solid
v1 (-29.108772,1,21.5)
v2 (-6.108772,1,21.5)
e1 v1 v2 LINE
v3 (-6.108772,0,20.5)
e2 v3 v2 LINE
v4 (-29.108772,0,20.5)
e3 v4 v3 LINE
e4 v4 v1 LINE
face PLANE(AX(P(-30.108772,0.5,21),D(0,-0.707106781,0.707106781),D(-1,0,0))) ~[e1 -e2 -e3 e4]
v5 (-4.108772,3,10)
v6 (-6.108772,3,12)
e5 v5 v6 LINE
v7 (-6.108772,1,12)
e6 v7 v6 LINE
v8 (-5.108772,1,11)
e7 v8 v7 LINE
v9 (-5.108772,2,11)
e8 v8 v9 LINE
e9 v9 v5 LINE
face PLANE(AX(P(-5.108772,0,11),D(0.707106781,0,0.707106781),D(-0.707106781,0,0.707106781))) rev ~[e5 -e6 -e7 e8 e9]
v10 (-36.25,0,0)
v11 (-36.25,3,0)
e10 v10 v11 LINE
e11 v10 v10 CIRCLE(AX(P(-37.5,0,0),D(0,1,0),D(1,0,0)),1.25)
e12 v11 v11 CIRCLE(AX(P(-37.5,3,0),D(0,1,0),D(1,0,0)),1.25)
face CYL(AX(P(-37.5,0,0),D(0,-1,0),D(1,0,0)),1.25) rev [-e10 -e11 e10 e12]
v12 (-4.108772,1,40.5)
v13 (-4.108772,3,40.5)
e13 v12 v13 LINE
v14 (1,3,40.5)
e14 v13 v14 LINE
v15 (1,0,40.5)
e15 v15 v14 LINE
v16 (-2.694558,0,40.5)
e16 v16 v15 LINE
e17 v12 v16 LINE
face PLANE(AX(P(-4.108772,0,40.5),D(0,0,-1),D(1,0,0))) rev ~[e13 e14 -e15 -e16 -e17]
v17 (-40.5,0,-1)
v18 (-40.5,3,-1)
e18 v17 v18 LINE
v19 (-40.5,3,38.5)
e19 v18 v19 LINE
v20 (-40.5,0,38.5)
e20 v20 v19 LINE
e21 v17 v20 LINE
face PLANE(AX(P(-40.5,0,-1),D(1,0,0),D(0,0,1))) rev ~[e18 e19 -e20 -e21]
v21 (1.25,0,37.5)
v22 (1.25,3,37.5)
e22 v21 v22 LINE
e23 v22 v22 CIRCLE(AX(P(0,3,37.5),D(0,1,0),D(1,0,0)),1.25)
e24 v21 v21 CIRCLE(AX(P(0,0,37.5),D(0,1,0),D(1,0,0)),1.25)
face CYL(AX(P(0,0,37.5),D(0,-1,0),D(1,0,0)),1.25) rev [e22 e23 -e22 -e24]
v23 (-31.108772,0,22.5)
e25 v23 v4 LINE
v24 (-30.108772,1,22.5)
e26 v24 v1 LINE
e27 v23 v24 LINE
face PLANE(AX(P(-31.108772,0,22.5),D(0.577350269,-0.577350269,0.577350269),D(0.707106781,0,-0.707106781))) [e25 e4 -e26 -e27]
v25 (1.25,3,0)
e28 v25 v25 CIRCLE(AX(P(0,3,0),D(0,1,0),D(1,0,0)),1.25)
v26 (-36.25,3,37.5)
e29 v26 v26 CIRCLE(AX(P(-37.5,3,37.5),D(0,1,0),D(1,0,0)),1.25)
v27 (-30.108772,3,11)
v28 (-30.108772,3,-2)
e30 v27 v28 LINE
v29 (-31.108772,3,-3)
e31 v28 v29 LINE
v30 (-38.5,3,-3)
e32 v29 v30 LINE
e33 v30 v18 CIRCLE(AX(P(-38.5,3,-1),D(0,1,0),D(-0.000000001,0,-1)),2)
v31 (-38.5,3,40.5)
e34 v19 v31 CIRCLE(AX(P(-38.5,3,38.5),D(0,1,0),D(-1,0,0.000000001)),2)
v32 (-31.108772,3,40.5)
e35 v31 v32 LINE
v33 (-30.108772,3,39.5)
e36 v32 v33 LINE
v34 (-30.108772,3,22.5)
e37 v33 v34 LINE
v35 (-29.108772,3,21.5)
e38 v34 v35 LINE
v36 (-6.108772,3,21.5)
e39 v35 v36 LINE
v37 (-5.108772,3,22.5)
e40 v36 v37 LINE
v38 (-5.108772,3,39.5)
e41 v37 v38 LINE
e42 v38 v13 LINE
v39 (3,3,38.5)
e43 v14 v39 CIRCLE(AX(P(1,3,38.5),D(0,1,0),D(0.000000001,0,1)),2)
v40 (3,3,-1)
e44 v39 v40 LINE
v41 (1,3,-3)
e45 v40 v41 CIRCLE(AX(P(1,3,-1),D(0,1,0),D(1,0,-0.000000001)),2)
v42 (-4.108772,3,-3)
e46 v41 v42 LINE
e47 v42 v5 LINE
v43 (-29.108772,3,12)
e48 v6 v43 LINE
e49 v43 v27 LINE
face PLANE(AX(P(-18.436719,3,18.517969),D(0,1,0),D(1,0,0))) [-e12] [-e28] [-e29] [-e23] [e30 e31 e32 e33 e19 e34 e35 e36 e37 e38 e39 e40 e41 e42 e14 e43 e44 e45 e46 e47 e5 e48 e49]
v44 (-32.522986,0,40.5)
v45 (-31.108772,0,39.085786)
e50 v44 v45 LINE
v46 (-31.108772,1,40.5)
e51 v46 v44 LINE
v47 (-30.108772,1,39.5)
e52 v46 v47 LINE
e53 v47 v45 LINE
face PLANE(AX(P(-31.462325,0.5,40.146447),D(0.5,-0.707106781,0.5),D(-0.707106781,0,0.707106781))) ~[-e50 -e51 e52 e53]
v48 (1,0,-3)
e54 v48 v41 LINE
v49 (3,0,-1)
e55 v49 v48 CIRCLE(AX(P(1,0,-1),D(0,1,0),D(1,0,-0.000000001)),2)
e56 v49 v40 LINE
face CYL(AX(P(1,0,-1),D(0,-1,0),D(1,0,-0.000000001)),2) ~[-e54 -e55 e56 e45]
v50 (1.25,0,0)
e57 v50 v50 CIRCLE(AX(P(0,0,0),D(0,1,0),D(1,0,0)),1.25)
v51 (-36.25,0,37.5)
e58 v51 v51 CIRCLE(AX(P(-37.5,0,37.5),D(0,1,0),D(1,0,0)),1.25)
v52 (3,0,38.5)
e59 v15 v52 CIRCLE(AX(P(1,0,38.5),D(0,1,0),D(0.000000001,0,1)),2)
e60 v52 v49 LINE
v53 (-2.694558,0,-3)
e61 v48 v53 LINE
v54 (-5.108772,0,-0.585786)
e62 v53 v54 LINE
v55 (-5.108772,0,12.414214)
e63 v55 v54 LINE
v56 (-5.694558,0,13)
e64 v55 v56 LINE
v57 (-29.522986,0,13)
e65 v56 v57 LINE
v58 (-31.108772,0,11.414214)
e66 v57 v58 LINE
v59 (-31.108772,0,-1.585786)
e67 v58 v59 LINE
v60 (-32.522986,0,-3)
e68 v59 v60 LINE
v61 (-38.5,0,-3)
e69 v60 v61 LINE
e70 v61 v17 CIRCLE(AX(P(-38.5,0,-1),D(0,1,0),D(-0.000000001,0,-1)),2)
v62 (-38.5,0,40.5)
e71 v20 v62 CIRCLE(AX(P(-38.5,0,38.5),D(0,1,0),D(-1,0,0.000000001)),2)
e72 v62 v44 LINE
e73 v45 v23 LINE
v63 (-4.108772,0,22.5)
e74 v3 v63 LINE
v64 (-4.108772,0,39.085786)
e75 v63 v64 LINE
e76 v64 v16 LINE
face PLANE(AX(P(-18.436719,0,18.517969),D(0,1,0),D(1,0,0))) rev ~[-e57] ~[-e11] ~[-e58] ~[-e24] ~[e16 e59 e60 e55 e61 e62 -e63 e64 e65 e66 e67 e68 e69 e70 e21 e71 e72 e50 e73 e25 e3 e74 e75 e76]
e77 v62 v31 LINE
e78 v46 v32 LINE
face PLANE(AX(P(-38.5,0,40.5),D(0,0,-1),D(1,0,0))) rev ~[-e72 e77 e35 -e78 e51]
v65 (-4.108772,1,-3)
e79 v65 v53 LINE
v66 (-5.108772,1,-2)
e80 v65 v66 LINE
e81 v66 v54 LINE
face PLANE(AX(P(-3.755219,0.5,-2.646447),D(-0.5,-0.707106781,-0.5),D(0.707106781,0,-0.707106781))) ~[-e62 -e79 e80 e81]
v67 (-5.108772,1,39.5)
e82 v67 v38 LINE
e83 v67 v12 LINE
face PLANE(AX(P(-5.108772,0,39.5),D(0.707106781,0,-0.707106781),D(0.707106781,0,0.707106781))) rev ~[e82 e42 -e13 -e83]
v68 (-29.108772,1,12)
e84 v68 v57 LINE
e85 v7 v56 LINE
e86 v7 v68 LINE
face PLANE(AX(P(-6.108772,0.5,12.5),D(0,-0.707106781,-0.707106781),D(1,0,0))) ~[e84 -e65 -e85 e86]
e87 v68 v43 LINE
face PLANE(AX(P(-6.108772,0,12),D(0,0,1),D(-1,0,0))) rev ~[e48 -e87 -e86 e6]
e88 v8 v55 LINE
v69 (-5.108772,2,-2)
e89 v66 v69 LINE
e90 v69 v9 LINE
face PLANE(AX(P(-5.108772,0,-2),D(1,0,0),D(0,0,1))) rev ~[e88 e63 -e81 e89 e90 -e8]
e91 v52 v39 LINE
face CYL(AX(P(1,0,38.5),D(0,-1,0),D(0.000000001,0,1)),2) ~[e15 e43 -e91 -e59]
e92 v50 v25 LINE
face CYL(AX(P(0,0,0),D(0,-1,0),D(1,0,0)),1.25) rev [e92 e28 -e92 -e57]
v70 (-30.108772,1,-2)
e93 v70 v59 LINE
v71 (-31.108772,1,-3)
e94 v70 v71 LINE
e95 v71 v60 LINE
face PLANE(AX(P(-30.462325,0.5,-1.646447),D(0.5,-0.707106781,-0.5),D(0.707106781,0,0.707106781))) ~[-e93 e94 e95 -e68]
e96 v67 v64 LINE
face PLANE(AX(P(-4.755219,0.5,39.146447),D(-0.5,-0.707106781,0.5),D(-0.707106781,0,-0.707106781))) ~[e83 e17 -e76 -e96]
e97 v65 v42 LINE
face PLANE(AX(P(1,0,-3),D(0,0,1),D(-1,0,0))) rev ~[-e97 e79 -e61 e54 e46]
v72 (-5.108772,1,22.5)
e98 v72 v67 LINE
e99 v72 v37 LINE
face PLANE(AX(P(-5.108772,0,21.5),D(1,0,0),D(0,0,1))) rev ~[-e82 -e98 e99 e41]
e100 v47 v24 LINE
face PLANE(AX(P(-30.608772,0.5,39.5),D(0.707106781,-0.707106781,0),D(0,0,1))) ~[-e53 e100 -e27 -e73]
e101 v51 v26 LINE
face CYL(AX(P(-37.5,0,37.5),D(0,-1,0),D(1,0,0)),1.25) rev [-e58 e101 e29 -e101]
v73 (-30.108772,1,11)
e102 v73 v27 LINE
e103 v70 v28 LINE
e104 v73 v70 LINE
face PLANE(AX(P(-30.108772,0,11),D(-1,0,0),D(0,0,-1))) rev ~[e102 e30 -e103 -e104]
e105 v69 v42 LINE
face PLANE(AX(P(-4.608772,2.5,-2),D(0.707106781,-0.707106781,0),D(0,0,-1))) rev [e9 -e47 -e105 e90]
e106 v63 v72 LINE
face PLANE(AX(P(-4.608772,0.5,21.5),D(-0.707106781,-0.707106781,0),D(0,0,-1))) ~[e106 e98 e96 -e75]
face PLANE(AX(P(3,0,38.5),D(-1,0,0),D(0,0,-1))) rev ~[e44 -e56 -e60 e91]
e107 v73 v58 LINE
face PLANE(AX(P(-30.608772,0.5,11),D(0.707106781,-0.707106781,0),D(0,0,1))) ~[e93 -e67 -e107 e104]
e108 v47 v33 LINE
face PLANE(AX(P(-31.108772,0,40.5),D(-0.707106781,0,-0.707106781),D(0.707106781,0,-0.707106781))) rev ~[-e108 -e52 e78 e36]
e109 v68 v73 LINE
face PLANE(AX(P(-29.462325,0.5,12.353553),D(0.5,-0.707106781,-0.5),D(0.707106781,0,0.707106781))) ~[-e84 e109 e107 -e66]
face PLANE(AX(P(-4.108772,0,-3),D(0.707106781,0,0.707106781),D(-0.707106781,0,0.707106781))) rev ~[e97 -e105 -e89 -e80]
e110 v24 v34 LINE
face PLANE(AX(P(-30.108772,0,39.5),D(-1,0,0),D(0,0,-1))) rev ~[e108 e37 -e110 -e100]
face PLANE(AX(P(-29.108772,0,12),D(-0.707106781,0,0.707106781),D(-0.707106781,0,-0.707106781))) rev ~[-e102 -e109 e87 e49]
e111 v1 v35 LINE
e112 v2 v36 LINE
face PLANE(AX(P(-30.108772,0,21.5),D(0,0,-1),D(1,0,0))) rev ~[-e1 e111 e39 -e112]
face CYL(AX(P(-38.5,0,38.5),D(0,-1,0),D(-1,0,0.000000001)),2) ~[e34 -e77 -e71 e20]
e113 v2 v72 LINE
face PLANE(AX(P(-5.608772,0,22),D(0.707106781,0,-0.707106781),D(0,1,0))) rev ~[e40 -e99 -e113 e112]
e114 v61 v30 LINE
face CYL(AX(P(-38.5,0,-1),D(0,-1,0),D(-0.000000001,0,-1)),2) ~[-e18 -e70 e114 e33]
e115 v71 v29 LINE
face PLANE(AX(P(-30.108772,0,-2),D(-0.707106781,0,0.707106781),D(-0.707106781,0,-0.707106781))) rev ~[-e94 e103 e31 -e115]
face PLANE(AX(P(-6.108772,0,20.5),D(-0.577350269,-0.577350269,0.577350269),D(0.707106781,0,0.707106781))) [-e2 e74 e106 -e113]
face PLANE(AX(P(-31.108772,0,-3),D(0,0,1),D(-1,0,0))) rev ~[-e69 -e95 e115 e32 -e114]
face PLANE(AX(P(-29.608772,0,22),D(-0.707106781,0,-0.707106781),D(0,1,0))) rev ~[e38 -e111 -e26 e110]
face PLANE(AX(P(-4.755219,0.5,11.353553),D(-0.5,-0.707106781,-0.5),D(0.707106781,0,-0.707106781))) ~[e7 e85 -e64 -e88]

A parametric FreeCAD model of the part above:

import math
import FreeCAD as App
import Part
import Sketcher


def edges_at(feature, points):
    """Names of the edges that pass closest to the given points."""
    edges = feature.Shape.Edges
    near = lambda p: min(range(len(edges)), key=lambda i: edges[i].distToShape(Part.Vertex(*p))[0])
    return sorted({f"Edge{near(p) + 1}" for p in points})

doc = App.newDocument("Part")
body = doc.addObject("PartDesign::Body", "Body")

# Sketch on XZ plane
sketch1 = body.newObject("Sketcher::SketchObject", "Sketch")
sketch1.AttachmentSupport = (doc.getObject("XZ_Plane"), [""])
sketch1.MapMode = "FlatFace"
sketch1.addGeometry([
    Part.LineSegment(App.Vector(-31.108772, 40.5, 0), App.Vector(-30.108772, 39.5, 0)),  # 0
    Part.LineSegment(App.Vector(-30.108772, 39.5, 0), App.Vector(-30.108772, 21.5, 0)),  # 1
    Part.LineSegment(App.Vector(-30.108772, 21.5, 0), App.Vector(-5.108772, 21.5, 0)),  # 2
    Part.LineSegment(App.Vector(-5.108772, 21.5, 0), App.Vector(-5.108772, 39.5, 0)),  # 3
    Part.LineSegment(App.Vector(-5.108772, 39.5, 0), App.Vector(-4.108772, 40.5, 0)),  # 4
    Part.LineSegment(App.Vector(-4.108772, 40.5, 0), App.Vector(1, 40.5, 0)),  # 5
    Part.ArcOfCircle(Part.Circle(App.Vector(1, 38.5, 0), App.Vector(0, 0, 1), 2), math.radians(0), math.radians(90)),  # 6
    Part.LineSegment(App.Vector(3, 38.5, 0), App.Vector(3, -1, 0)),  # 7
    Part.ArcOfCircle(Part.Circle(App.Vector(1, -1, 0), App.Vector(0, 0, 1), 2), math.radians(-90), math.radians(0)),  # 8
    Part.LineSegment(App.Vector(1, -3, 0), App.Vector(-4.108772, -3, 0)),  # 9
    Part.LineSegment(App.Vector(-4.108772, -3, 0), App.Vector(-5.108772, -2, 0)),  # 10
    Part.LineSegment(App.Vector(-5.108772, -2, 0), App.Vector(-5.108772, 11, 0)),  # 11
    Part.LineSegment(App.Vector(-5.108772, 11, 0), App.Vector(-6.108772, 12, 0)),  # 12
    Part.LineSegment(App.Vector(-6.108772, 12, 0), App.Vector(-29.108772, 12, 0)),  # 13
    Part.LineSegment(App.Vector(-29.108772, 12, 0), App.Vector(-30.108772, 11, 0)),  # 14
    Part.LineSegment(App.Vector(-30.108772, 11, 0), App.Vector(-30.108772, -2, 0)),  # 15
    Part.LineSegment(App.Vector(-30.108772, -2, 0), App.Vector(-31.108772, -3, 0)),  # 16
    Part.LineSegment(App.Vector(-31.108772, -3, 0), App.Vector(-38.5, -3, 0)),  # 17
    Part.ArcOfCircle(Part.Circle(App.Vector(-38.5, -1, 0), App.Vector(0, 0, 1), 2), math.radians(-180), math.radians(-90)),  # 18
    Part.LineSegment(App.Vector(-40.5, -1, 0), App.Vector(-40.5, 38.5, 0)),  # 19
    Part.ArcOfCircle(Part.Circle(App.Vector(-38.5, 38.5, 0), App.Vector(0, 0, 1), 2), math.radians(90), math.radians(180)),  # 20
    Part.LineSegment(App.Vector(-38.5, 40.5, 0), App.Vector(-31.108772, 40.5, 0)),  # 21
    Part.Circle(App.Vector(-37.5, 37.5, 0), App.Vector(0, 0, 1), 1.25),  # 22
    Part.Circle(App.Vector(0, 37.5, 0), App.Vector(0, 0, 1), 1.25),  # 23
    Part.Circle(App.Vector(-37.5, 0, 0), App.Vector(0, 0, 1), 1.25),  # 24
    Part.Circle(App.Vector(0, 0, 0), App.Vector(0, 0, 1), 1.25),  # 25
], False)
sketch1.addConstraint([
    Sketcher.Constraint("Coincident", 0, 2, 1, 1),
    Sketcher.Constraint("Coincident", 1, 2, 2, 1),
    Sketcher.Constraint("Coincident", 2, 2, 3, 1),
    Sketcher.Constraint("Coincident", 3, 2, 4, 1),
    Sketcher.Constraint("Coincident", 4, 2, 5, 1),
    Sketcher.Constraint("Tangent", 5, 2, 6, 2),
    Sketcher.Constraint("Tangent", 6, 1, 7, 1),
    Sketcher.Constraint("Tangent", 7, 2, 8, 2),
    Sketcher.Constraint("Tangent", 8, 1, 9, 1),
    Sketcher.Constraint("Coincident", 9, 2, 10, 1),
    Sketcher.Constraint("Coincident", 10, 2, 11, 1),
    Sketcher.Constraint("Coincident", 11, 2, 12, 1),
    Sketcher.Constraint("Coincident", 12, 2, 13, 1),
    Sketcher.Constraint("Coincident", 13, 2, 14, 1),
    Sketcher.Constraint("Coincident", 14, 2, 15, 1),
    Sketcher.Constraint("Coincident", 15, 2, 16, 1),
    Sketcher.Constraint("Coincident", 16, 2, 17, 1),
    Sketcher.Constraint("Tangent", 17, 2, 18, 2),
    Sketcher.Constraint("Tangent", 18, 1, 19, 1),
    Sketcher.Constraint("Tangent", 19, 2, 20, 2),
    Sketcher.Constraint("Tangent", 20, 1, 21, 1),
    Sketcher.Constraint("Coincident", 21, 2, 0, 1),
    Sketcher.Constraint("Vertical", 1),
    Sketcher.Constraint("Horizontal", 2),
    Sketcher.Constraint("Vertical", 3),
    Sketcher.Constraint("Horizontal", 5),
    Sketcher.Constraint("Vertical", 7),
    Sketcher.Constraint("Horizontal", 9),
    Sketcher.Constraint("Vertical", 11),
    Sketcher.Constraint("Horizontal", 13),
    Sketcher.Constraint("Vertical", 15),
    Sketcher.Constraint("Horizontal", 17),
    Sketcher.Constraint("Vertical", 19),
    Sketcher.Constraint("Horizontal", 21),
    Sketcher.Constraint("Coincident", 25, 3, -1, 1),
    Sketcher.Constraint("Equal", 6, 8),
    Sketcher.Constraint("Equal", 8, 18),
    Sketcher.Constraint("Equal", 18, 20),
    Sketcher.Constraint("Equal", 22, 23),
    Sketcher.Constraint("Equal", 23, 24),
    Sketcher.Constraint("Equal", 24, 25),
    Sketcher.Constraint("PointOnObject", 23, 3, -2),
    Sketcher.Constraint("PointOnObject", 24, 3, -1),
    Sketcher.Constraint("Perpendicular", 0, 4),
    Sketcher.Constraint("Perpendicular", 4, 10),
    Sketcher.Constraint("Parallel", 10, 12),
    Sketcher.Constraint("Perpendicular", 12, 14),
    Sketcher.Constraint("Parallel", 14, 16),
    Sketcher.Constraint("Horizontal", 8, 3, 18, 3),
    Sketcher.Constraint("Horizontal", 6, 3, 20, 3),
    Sketcher.Constraint("Horizontal", 22, 3, 23, 3),
    Sketcher.Constraint("Horizontal", 0, 2, 3, 2),
    Sketcher.Constraint("Horizontal", 11, 2, 14, 2),
    Sketcher.Constraint("Horizontal", 10, 2, 15, 2),
    Sketcher.Constraint("Vertical", 22, 3, 24, 3),
    Sketcher.Constraint("Vertical", 4, 2, 9, 2),
    Sketcher.Constraint("Vertical", 3, 2, 10, 2),
    Sketcher.Constraint("Vertical", 1, 2, 14, 2),
    Sketcher.Constraint("Vertical", 16, 2, 21, 2),
    Sketcher.Constraint("Equal", 10, 12),
    Sketcher.Constraint("Radius", 6, 2.0),
    Sketcher.Constraint("Diameter", 22, 2.5),
    Sketcher.Constraint("DistanceX", 2, 1, 2, 2, 25.0),
    Sketcher.Constraint("DistanceX", 13, 2, 13, 1, 23.0),
    Sketcher.Constraint("DistanceY", 1, 2, 1, 1, 18.0),
    Sketcher.Constraint("DistanceY", 11, 1, 11, 2, 13.0),
    Sketcher.Constraint("DistanceY", 7, 2, 7, 1, 39.5),
    Sketcher.Constraint("DistanceX", -1, 1, 6, 3, 1.0),
    Sketcher.Constraint("DistanceY", 8, 3, -1, 1, 1.0),
    Sketcher.Constraint("DistanceX", 20, 3, 22, 3, 1.0),
    Sketcher.Constraint("DistanceY", 22, 3, 20, 3, 1.0),
    Sketcher.Constraint("DistanceX", 18, 3, -1, 1, 38.5),
    Sketcher.Constraint("DistanceX", 5, 1, 5, 2, 5.108772),
])
pad1 = body.newObject("PartDesign::Pad", "Pad")
pad1.Profile = sketch1
pad1.Length = 3
pad1.Reversed = True
doc.recompute()

chamfer = body.newObject("PartDesign::Chamfer", "Chamfer")
chamfer.Base = (pad1, edges_at(pad1, [
    (-4.609, 0, 40),
    (-30.609, 0, 40),
    (-4.609, 0, -2.5),
    (-5.109, 3, 4.5),
    (-30.609, 0, -2.5),
    (-5.609, 0, 11.5),
    (-30.109, 0, 4.5),
    (-29.609, 0, 11.5),
    (-17.609, 0, 12),
    (-5.109, 0, 30.5),
    (-30.109, 0, 30.5),
    (-5.109, 1.5, 21.5),
    (-17.609, 0, 21.5),
    (-30.109, 1.5, 21.5),
]))
chamfer.Size = 1

doc.recompute()
